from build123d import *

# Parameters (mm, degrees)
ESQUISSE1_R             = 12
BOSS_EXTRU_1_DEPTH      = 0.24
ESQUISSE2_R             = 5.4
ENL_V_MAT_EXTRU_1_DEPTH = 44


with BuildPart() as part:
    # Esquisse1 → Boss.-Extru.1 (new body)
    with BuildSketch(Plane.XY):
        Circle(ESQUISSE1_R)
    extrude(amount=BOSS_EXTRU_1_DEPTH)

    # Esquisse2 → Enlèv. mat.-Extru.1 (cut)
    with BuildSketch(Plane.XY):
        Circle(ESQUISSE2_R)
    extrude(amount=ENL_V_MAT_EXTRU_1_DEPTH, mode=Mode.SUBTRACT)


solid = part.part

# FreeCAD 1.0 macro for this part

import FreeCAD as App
import Part
import Sketcher
from FreeCAD import Vector

doc = App.newDocument("Part")
body = doc.addObject("PartDesign::Body", "Body")

sketch1 = doc.addObject("Sketcher::SketchObject", "Sketch")
body.addObject(sketch1)
sketch1.AttachmentSupport = (doc.XY_Plane, [""])
sketch1.MapMode = "FlatFace"
sketch1.addGeometry(Part.Circle(Vector(0, 0, 0), Vector(0, 0, 1), 12), False)
sketch1.addConstraint([
    Sketcher.Constraint("Coincident", 0, 3, -1, 1),
    Sketcher.Constraint("Diameter", 0, 24.0),
])
pad1 = doc.addObject("PartDesign::Pad", "Pad")
body.addObject(pad1)
pad1.Profile = sketch1
pad1.Length = 0.24

sketch2 = doc.addObject("Sketcher::SketchObject", "Sketch001")
body.addObject(sketch2)
sketch2.AttachmentSupport = (doc.XY_Plane, [""])
sketch2.MapMode = "FlatFace"
sketch2.addGeometry(Part.Circle(Vector(0, 0, 0), Vector(0, 0, 1), 5.4), False)
sketch2.addConstraint([
    Sketcher.Constraint("Coincident", 0, 3, -1, 1),
    Sketcher.Constraint("Diameter", 0, 10.8),
])
pocket1 = doc.addObject("PartDesign::Pocket", "Pocket")
body.addObject(pocket1)
pocket1.Profile = sketch2
pocket1.Length = 44
pocket1.Reversed = True

doc.recompute()
